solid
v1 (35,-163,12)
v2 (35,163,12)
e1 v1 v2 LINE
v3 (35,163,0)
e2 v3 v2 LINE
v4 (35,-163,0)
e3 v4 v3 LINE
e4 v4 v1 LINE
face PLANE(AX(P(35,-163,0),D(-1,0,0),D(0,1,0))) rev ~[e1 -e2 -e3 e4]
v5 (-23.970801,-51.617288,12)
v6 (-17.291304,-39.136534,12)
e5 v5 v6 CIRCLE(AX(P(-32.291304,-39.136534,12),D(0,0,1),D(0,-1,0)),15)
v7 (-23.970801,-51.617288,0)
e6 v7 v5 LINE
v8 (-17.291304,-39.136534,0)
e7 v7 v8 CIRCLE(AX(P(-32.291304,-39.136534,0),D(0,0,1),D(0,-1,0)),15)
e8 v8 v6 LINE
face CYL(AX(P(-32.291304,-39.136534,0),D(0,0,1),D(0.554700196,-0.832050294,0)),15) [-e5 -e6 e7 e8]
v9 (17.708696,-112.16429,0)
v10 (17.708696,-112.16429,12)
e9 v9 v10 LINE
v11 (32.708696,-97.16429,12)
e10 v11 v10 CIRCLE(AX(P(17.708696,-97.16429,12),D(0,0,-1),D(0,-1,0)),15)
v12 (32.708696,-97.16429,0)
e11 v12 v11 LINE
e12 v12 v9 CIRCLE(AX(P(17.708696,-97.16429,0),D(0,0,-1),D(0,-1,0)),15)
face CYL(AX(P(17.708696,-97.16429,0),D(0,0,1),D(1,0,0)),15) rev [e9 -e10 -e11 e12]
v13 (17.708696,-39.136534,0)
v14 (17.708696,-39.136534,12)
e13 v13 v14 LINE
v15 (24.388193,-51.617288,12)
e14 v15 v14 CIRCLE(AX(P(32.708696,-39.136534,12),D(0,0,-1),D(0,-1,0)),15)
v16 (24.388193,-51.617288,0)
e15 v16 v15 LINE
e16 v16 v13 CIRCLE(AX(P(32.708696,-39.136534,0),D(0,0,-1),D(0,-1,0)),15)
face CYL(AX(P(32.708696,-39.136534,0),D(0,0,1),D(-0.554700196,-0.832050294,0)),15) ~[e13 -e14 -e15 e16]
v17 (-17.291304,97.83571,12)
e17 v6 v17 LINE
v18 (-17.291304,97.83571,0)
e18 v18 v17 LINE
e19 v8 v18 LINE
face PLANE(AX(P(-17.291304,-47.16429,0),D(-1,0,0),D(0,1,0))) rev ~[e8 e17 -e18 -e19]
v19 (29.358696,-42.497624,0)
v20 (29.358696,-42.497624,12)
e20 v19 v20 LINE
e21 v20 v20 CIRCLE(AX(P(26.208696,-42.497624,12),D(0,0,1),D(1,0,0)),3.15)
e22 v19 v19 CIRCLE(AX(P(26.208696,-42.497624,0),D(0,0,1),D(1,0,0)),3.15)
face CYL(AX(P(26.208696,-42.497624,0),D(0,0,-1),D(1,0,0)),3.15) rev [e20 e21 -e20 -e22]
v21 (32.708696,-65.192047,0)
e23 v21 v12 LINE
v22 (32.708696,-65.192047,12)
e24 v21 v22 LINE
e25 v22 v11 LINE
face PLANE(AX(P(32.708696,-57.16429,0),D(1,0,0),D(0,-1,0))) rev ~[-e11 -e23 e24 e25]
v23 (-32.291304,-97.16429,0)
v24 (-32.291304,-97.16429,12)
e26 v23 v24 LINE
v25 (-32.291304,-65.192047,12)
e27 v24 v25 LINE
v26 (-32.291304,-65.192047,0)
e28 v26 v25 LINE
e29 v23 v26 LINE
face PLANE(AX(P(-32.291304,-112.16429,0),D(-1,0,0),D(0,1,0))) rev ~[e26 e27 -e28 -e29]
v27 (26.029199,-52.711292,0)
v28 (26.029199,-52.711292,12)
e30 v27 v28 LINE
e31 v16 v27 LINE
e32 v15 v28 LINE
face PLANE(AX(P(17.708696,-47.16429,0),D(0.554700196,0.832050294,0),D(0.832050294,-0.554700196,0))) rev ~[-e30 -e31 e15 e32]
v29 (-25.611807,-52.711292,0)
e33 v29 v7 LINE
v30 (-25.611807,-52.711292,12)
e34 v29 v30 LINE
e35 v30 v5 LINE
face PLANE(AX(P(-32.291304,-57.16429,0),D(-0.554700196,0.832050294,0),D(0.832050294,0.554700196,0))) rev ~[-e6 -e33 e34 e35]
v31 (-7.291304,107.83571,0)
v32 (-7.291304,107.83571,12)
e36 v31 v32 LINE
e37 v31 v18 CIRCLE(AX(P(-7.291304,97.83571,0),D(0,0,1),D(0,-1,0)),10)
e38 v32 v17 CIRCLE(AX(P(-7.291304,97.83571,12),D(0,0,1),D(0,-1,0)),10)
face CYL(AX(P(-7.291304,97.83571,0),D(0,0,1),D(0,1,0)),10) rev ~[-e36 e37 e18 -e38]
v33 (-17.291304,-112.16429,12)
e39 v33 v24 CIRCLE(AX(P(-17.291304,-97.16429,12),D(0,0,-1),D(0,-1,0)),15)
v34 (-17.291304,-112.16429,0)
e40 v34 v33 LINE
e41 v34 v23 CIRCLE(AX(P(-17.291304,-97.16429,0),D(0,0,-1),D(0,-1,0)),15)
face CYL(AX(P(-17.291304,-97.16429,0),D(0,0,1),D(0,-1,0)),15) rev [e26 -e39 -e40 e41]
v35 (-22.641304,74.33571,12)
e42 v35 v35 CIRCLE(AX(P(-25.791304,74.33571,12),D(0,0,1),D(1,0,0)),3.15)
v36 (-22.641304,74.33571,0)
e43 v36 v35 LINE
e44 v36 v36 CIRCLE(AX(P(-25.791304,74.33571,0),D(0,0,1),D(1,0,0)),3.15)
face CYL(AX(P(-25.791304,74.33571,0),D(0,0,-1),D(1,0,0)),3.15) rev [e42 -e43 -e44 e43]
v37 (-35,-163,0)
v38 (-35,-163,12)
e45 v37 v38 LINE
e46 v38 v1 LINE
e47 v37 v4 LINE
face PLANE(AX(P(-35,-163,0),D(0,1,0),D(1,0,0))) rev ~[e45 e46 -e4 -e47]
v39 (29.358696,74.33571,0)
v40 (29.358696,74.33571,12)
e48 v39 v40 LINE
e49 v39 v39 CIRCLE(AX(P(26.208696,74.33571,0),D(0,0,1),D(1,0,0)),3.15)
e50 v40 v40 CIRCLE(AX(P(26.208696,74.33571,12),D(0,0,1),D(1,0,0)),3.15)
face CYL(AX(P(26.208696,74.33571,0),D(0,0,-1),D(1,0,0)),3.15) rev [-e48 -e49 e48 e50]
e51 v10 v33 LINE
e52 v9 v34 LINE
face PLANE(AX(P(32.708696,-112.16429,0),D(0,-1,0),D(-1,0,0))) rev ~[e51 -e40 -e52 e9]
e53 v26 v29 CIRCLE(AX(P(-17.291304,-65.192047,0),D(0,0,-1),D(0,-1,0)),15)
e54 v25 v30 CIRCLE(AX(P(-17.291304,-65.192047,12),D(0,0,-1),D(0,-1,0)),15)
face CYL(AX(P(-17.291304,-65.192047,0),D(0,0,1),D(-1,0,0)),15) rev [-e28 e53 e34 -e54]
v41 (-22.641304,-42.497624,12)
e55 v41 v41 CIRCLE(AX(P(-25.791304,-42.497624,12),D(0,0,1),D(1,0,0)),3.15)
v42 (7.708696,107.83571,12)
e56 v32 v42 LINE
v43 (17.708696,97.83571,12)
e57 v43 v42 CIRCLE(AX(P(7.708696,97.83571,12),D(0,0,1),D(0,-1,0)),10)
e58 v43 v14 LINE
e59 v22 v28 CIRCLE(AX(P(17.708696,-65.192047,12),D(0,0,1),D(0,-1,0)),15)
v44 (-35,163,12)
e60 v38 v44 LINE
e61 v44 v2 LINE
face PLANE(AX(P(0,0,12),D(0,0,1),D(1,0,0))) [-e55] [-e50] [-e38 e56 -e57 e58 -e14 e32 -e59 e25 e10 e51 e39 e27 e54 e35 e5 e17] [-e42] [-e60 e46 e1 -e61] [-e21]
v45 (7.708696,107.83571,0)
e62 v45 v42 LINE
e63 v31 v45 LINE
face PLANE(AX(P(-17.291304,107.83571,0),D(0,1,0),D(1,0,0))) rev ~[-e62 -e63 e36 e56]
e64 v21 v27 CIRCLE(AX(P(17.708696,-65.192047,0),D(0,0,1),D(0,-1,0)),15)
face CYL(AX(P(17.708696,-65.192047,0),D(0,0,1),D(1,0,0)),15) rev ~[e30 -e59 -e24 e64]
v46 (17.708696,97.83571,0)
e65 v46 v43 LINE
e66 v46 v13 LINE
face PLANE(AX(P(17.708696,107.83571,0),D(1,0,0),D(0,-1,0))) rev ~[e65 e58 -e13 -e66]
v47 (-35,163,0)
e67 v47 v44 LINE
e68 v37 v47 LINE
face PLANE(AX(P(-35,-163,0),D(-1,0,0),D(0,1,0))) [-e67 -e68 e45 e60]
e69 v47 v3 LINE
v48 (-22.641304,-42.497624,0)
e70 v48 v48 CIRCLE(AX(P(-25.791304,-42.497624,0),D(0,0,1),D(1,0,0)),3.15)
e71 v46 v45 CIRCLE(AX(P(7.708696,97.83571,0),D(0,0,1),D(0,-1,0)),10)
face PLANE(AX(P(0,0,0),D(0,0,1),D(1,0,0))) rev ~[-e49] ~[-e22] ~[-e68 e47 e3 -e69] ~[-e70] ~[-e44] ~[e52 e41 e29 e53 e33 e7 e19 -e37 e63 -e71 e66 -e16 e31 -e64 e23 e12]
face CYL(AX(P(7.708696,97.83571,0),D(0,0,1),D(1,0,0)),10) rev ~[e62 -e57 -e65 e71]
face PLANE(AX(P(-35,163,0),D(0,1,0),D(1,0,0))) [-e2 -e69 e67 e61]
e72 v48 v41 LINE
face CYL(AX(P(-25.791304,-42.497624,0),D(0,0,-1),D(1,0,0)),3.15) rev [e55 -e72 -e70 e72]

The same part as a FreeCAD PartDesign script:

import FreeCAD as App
import Part
import Sketcher
from FreeCAD import Vector


def edges_at(feature, points):
    """Names of the edges that pass closest to the given points."""
    edges = feature.Shape.Edges
    near = lambda p: min(range(len(edges)), key=lambda i: edges[i].distToShape(Part.Vertex(*p))[0])
    return sorted({f"Edge{near(p) + 1}" for p in points})

doc = App.newDocument("Part")
body = doc.addObject("PartDesign::Body", "Body")

sketch1 = body.newObject("Sketcher::SketchObject", "Sketch")
sketch1.AttachmentSupport = (doc.getObject("XY_Plane"), [""])
sketch1.MapMode = "FlatFace"
sketch1.addGeometry([
    Part.LineSegment(Vector(-35, 163, 0), Vector(-35, -163, 0)),
    Part.LineSegment(Vector(-35, -163, 0), Vector(35, -163, 0)),
    Part.LineSegment(Vector(35, -163, 0), Vector(35, 163, 0)),
    Part.LineSegment(Vector(35, 163, 0), Vector(-35, 163, 0)),
    Part.Circle(Vector(-25.8, -42.5, 0), Vector(0, 0, 1), 3.1),
    Part.Circle(Vector(26.2, -42.5, 0), Vector(0, 0, 1), 3.1),
    Part.Circle(Vector(-25.8, 74.3, 0), Vector(0, 0, 1), 3.1),
    Part.LineSegment(Vector(32.7, -57.2, 0), Vector(32.7, -112.2, 0)),
    Part.LineSegment(Vector(32.7, -112.2, 0), Vector(-32.3, -112.2, 0)),
    Part.LineSegment(Vector(-32.3, -112.2, 0), Vector(-32.3, -57.2, 0)),
    Part.LineSegment(Vector(-32.3, -57.2, 0), Vector(-17.3, -47.2, 0)),
    Part.LineSegment(Vector(-17.3, -47.2, 0), Vector(-17.3, 107.8, 0)),
    Part.LineSegment(Vector(-17.3, 107.8, 0), Vector(17.7, 107.8, 0)),
    Part.LineSegment(Vector(17.7, 107.8, 0), Vector(17.7, -47.2, 0)),
    Part.LineSegment(Vector(17.7, -47.2, 0), Vector(32.7, -57.2, 0)),
    Part.Circle(Vector(26.2, 74.3, 0), Vector(0, 0, 1), 3.1),
], False)
sketch1.addConstraint([
    Sketcher.Constraint("Coincident", 0, 2, 1, 1),
    Sketcher.Constraint("Coincident", 1, 2, 2, 1),
    Sketcher.Constraint("Coincident", 2, 2, 3, 1),
    Sketcher.Constraint("Coincident", 3, 2, 0, 1),
    Sketcher.Constraint("Coincident", 7, 2, 8, 1),
    Sketcher.Constraint("Coincident", 8, 2, 9, 1),
    Sketcher.Constraint("Coincident", 9, 2, 10, 1),
    Sketcher.Constraint("Coincident", 10, 2, 11, 1),
    Sketcher.Constraint("Coincident", 11, 2, 12, 1),
    Sketcher.Constraint("Coincident", 12, 2, 13, 1),
    Sketcher.Constraint("Coincident", 13, 2, 14, 1),
    Sketcher.Constraint("Coincident", 14, 2, 7, 1),
    Sketcher.Constraint("Vertical", 0),
    Sketcher.Constraint("Horizontal", 1),
    Sketcher.Constraint("Vertical", 2),
    Sketcher.Constraint("Horizontal", 3),
    Sketcher.Constraint("Vertical", 7),
    Sketcher.Constraint("Horizontal", 8),
    Sketcher.Constraint("Vertical", 9),
    Sketcher.Constraint("Vertical", 11),
    Sketcher.Constraint("Horizontal", 12),
    Sketcher.Constraint("Vertical", 13),
    Sketcher.Constraint("Equal", 4, 5),
    Sketcher.Constraint("Equal", 5, 6),
    Sketcher.Constraint("Equal", 6, 15),
    Sketcher.Constraint("Symmetric", 0, 2, 2, 2, -1, 1),
    Sketcher.Constraint("Horizontal", 4, 3, 5, 3),
    Sketcher.Constraint("Horizontal", 6, 3, 15, 3),
    Sketcher.Constraint("Horizontal", 10, 2, 13, 2),
    Sketcher.Constraint("Horizontal", 9, 2, 14, 2),
    Sketcher.Constraint("Vertical", 4, 3, 6, 3),
    Sketcher.Constraint("Vertical", 5, 3, 15, 3),
    Sketcher.Constraint("Equal", 10, 14),
    Sketcher.Constraint("Diameter", 4, 6.3),
    Sketcher.Constraint("DistanceX", 1, 1, 1, 2, 70.0),
    Sketcher.Constraint("DistanceX", 8, 2, 8, 1, 65.0),
    Sketcher.Constraint("DistanceX", 12, 1, 12, 2, 35.0),
    Sketcher.Constraint("DistanceY", 0, 2, 0, 1, 326.0),
    Sketcher.Constraint("DistanceY", 7, 2, 7, 1, 55.0),
    Sketcher.Constraint("DistanceY", 11, 1, 11, 2, 155.0),
    Sketcher.Constraint("DistanceX", 4, 3, 5, 3, 52.0),
    Sketcher.Constraint("DistanceY", 9, 2, 10, 2, 10.0),
    Sketcher.Constraint("DistanceX", 5, 3, 7, 2, 6.5),
    Sketcher.Constraint("DistanceY", 7, 2, 15, 3, 186.5),
    Sketcher.Constraint("DistanceY", -1, 1, 6, 3, 74.33571),
    Sketcher.Constraint("DistanceX", 4, 3, -1, 1, 25.791304),
    Sketcher.Constraint("DistanceY", 4, 3, -1, 1, 42.497624),
])
pad1 = body.newObject("PartDesign::Pad", "Pad")
pad1.Profile = sketch1
pad1.Length = 12
doc.recompute()

fillet = body.newObject("PartDesign::Fillet", "Fillet")
fillet.Base = (pad1, edges_at(pad1, [
    (-32.291, -57.164, 6),
    (-17.291, -47.164, 6),
    (17.709, -47.164, 6),
    (32.709, -57.164, 6),
    (32.709, -112.164, 6),
    (-32.291, -112.164, 6),
]))
fillet.Radius = 15
doc.recompute()

fillet2 = body.newObject("PartDesign::Fillet", "Fillet001")
fillet2.Base = (fillet, edges_at(fillet, [(17.709, 107.836, 6), (-17.291, 107.836, 6)]))
fillet2.Radius = 10

doc.recompute()
